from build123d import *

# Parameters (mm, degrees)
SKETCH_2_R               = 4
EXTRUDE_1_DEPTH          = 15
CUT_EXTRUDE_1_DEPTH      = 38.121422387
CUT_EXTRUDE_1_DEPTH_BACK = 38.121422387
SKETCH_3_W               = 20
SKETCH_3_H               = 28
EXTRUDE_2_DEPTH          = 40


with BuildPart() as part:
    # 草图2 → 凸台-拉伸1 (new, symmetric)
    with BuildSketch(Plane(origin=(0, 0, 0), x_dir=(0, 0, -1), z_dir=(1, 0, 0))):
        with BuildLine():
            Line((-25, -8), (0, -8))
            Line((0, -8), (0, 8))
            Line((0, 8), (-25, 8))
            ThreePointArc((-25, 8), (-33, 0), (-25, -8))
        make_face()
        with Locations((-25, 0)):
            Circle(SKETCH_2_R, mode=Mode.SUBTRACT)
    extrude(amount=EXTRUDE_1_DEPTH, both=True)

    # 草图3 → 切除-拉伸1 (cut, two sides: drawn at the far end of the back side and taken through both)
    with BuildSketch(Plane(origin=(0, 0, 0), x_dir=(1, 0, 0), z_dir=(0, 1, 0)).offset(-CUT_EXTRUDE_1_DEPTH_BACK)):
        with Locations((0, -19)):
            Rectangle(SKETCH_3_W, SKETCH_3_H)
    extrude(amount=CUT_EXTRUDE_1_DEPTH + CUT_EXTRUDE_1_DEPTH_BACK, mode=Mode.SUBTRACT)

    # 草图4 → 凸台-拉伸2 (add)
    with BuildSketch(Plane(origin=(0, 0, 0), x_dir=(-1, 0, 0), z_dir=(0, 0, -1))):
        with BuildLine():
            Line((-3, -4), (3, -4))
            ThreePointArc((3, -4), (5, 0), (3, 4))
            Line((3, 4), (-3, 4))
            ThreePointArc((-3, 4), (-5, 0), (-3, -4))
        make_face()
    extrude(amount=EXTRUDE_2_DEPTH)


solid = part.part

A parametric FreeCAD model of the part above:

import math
import FreeCAD as App
import Part
import Sketcher
from FreeCAD import Vector

doc = App.newDocument("Part")
params = doc.addObject("Spreadsheet::Sheet", "Params")
for row, (alias, value) in enumerate([
    ("sketch1_diameter", "8 mm"),
    ("sketch1_radius", "8 mm"),
    ("sketch1_height", "25 mm"),
    ("pad1_length", "30 mm"),
    ("sketch2_width", "20 mm"),
    ("sketch2_height", "28 mm"),
    ("sketch3_radius", "5 mm"),
    ("sketch3_width", "6 mm"),
    ("pad2_length", "40 mm"),
], start=1):
    params.set(f"A{row}", alias)
    params.set(f"B{row}", "=" + value)
    params.setAlias(f"B{row}", alias)

body = doc.addObject("PartDesign::Body", "Body")

# Sketch on YZ plane
sketch1 = body.newObject("Sketcher::SketchObject", "Sketch")
sketch1.AttachmentSupport = (doc.getObject("YZ_Plane"), [""])
sketch1.MapMode = "FlatFace"
sketch1.addGeometry(Part.LineSegment(Vector(-8, 25, 0), Vector(-8, 0, 0)), False)
sketch1.addGeometry(Part.LineSegment(Vector(-8, 0, 0), Vector(8, 0, 0)), False)
sketch1.addGeometry(Part.LineSegment(Vector(8, 0, 0), Vector(8, 25, 0)), False)
sketch1.addGeometry(Part.ArcOfCircle(Part.Circle(Vector(0, 25, 0), Vector(0, 0, 1), 8), math.radians(0), math.radians(180)), False)
sketch1.addGeometry(Part.Circle(Vector(0, 25, 0), Vector(0, 0, 1), 4), False)
sketch1.addConstraint(Sketcher.Constraint("Coincident", 0, 2, 1, 1))
sketch1.addConstraint(Sketcher.Constraint("Coincident", 1, 2, 2, 1))
sketch1.addConstraint(Sketcher.Constraint("Tangent", 2, 2, 3, 1))
sketch1.addConstraint(Sketcher.Constraint("Tangent", 3, 2, 0, 1))
sketch1.addConstraint(Sketcher.Constraint("Vertical", 0))
sketch1.addConstraint(Sketcher.Constraint("Horizontal", 1))
sketch1.addConstraint(Sketcher.Constraint("Vertical", 2))
sketch1.addConstraint(Sketcher.Constraint("Coincident", 4, 3, 3, 3))
sketch1.addConstraint(Sketcher.Constraint("Symmetric", 0, 2, 1, 2, -1, 1))
sketch1.addConstraint(Sketcher.Constraint("Diameter", 4, 8.0))
sketch1.addConstraint(Sketcher.Constraint("Radius", 3, 8.0))
sketch1.addConstraint(Sketcher.Constraint("DistanceY", 0, 2, 0, 1, 25.0))
sketch1.setExpression("Constraints[9]", "Params.sketch1_diameter")
sketch1.setExpression("Constraints[10]", "Params.sketch1_radius")
sketch1.setExpression("Constraints[11]", "Params.sketch1_height")
pad1 = body.newObject("PartDesign::Pad", "Pad")
pad1.Profile = sketch1
pad1.setExpression("Length", "Params.pad1_length")
pad1.Midplane = True

# Sketch on XZ plane
sketch2 = body.newObject("Sketcher::SketchObject", "Sketch001")
sketch2.AttachmentSupport = (doc.getObject("XZ_Plane"), [""])
sketch2.MapMode = "FlatFace"
sketch2.addGeometry(Part.LineSegment(Vector(-10, 5, 0), Vector(-10, 33, 0)), False)
sketch2.addGeometry(Part.LineSegment(Vector(-10, 33, 0), Vector(10, 33, 0)), False)
sketch2.addGeometry(Part.LineSegment(Vector(10, 33, 0), Vector(10, 5, 0)), False)
sketch2.addGeometry(Part.LineSegment(Vector(10, 5, 0), Vector(-10, 5, 0)), False)
sketch2.addConstraint(Sketcher.Constraint("Coincident", 0, 2, 1, 1))
sketch2.addConstraint(Sketcher.Constraint("Coincident", 1, 2, 2, 1))
sketch2.addConstraint(Sketcher.Constraint("Coincident", 2, 2, 3, 1))
sketch2.addConstraint(Sketcher.Constraint("Coincident", 3, 2, 0, 1))
sketch2.addConstraint(Sketcher.Constraint("Vertical", 0))
sketch2.addConstraint(Sketcher.Constraint("Horizontal", 1))
sketch2.addConstraint(Sketcher.Constraint("Vertical", 2))
sketch2.addConstraint(Sketcher.Constraint("Horizontal", 3))
sketch2.addConstraint(Sketcher.Constraint("DistanceX", 1, 1, 1, 2, 20.0))
sketch2.addConstraint(Sketcher.Constraint("DistanceY", 0, 1, 0, 2, 28.0))
sketch2.addConstraint(Sketcher.Constraint("DistanceX", 0, 2, -1, 1, 10.0))
sketch2.addConstraint(Sketcher.Constraint("DistanceY", -1, 1, 0, 2, 33.0))
sketch2.setExpression("Constraints[8]", "Params.sketch2_width")
sketch2.setExpression("Constraints[9]", "Params.sketch2_height")
pocket1 = body.newObject("PartDesign::Pocket", "Pocket")
pocket1.Profile = sketch2
pocket1.Type = "ThroughAll"
pocket1.Midplane = True

# Sketch on XY plane
sketch3 = body.newObject("Sketcher::SketchObject", "Sketch002")
sketch3.AttachmentSupport = (doc.getObject("XY_Plane"), [""])
sketch3.MapMode = "FlatFace"
sketch3.addGeometry(Part.LineSegment(Vector(3, -4, 0), Vector(-3, -4, 0)), False)
sketch3.addGeometry(Part.ArcOfCircle(Part.Circle(Vector(0, 0, 0), Vector(0, 0, 1), 5), math.radians(127), math.radians(233)), False)
sketch3.addGeometry(Part.LineSegment(Vector(-3, 4, 0), Vector(3, 4, 0)), False)
sketch3.addGeometry(Part.ArcOfCircle(Part.Circle(Vector(0, 0, 0), Vector(0, 0, 1), 5), math.radians(-53), math.radians(53)), False)
sketch3.addConstraint(Sketcher.Constraint("Coincident", 0, 2, 1, 2))
sketch3.addConstraint(Sketcher.Constraint("Coincident", 1, 1, 2, 1))
sketch3.addConstraint(Sketcher.Constraint("Coincident", 2, 2, 3, 2))
sketch3.addConstraint(Sketcher.Constraint("Coincident", 3, 1, 0, 1))
sketch3.addConstraint(Sketcher.Constraint("Horizontal", 0))
sketch3.addConstraint(Sketcher.Constraint("Horizontal", 2))
sketch3.addConstraint(Sketcher.Constraint("Coincident", 1, 3, -1, 1))
sketch3.addConstraint(Sketcher.Constraint("Coincident", 3, 3, -1, 1))
sketch3.addConstraint(Sketcher.Constraint("Equal", 1, 3))
sketch3.addConstraint(Sketcher.Constraint("Vertical", 0, 2, 1, 1))
sketch3.addConstraint(Sketcher.Constraint("Radius", 1, 5.0))
sketch3.addConstraint(Sketcher.Constraint("DistanceX", 0, 2, 0, 1, 6.0))
sketch3.setExpression("Constraints[10]", "Params.sketch3_radius")
sketch3.setExpression("Constraints[11]", "Params.sketch3_width")
pad2 = body.newObject("PartDesign::Pad", "Pad001")
pad2.Profile = sketch3
pad2.setExpression("Length", "Params.pad2_length")
pad2.Reversed = True

doc.recompute()
